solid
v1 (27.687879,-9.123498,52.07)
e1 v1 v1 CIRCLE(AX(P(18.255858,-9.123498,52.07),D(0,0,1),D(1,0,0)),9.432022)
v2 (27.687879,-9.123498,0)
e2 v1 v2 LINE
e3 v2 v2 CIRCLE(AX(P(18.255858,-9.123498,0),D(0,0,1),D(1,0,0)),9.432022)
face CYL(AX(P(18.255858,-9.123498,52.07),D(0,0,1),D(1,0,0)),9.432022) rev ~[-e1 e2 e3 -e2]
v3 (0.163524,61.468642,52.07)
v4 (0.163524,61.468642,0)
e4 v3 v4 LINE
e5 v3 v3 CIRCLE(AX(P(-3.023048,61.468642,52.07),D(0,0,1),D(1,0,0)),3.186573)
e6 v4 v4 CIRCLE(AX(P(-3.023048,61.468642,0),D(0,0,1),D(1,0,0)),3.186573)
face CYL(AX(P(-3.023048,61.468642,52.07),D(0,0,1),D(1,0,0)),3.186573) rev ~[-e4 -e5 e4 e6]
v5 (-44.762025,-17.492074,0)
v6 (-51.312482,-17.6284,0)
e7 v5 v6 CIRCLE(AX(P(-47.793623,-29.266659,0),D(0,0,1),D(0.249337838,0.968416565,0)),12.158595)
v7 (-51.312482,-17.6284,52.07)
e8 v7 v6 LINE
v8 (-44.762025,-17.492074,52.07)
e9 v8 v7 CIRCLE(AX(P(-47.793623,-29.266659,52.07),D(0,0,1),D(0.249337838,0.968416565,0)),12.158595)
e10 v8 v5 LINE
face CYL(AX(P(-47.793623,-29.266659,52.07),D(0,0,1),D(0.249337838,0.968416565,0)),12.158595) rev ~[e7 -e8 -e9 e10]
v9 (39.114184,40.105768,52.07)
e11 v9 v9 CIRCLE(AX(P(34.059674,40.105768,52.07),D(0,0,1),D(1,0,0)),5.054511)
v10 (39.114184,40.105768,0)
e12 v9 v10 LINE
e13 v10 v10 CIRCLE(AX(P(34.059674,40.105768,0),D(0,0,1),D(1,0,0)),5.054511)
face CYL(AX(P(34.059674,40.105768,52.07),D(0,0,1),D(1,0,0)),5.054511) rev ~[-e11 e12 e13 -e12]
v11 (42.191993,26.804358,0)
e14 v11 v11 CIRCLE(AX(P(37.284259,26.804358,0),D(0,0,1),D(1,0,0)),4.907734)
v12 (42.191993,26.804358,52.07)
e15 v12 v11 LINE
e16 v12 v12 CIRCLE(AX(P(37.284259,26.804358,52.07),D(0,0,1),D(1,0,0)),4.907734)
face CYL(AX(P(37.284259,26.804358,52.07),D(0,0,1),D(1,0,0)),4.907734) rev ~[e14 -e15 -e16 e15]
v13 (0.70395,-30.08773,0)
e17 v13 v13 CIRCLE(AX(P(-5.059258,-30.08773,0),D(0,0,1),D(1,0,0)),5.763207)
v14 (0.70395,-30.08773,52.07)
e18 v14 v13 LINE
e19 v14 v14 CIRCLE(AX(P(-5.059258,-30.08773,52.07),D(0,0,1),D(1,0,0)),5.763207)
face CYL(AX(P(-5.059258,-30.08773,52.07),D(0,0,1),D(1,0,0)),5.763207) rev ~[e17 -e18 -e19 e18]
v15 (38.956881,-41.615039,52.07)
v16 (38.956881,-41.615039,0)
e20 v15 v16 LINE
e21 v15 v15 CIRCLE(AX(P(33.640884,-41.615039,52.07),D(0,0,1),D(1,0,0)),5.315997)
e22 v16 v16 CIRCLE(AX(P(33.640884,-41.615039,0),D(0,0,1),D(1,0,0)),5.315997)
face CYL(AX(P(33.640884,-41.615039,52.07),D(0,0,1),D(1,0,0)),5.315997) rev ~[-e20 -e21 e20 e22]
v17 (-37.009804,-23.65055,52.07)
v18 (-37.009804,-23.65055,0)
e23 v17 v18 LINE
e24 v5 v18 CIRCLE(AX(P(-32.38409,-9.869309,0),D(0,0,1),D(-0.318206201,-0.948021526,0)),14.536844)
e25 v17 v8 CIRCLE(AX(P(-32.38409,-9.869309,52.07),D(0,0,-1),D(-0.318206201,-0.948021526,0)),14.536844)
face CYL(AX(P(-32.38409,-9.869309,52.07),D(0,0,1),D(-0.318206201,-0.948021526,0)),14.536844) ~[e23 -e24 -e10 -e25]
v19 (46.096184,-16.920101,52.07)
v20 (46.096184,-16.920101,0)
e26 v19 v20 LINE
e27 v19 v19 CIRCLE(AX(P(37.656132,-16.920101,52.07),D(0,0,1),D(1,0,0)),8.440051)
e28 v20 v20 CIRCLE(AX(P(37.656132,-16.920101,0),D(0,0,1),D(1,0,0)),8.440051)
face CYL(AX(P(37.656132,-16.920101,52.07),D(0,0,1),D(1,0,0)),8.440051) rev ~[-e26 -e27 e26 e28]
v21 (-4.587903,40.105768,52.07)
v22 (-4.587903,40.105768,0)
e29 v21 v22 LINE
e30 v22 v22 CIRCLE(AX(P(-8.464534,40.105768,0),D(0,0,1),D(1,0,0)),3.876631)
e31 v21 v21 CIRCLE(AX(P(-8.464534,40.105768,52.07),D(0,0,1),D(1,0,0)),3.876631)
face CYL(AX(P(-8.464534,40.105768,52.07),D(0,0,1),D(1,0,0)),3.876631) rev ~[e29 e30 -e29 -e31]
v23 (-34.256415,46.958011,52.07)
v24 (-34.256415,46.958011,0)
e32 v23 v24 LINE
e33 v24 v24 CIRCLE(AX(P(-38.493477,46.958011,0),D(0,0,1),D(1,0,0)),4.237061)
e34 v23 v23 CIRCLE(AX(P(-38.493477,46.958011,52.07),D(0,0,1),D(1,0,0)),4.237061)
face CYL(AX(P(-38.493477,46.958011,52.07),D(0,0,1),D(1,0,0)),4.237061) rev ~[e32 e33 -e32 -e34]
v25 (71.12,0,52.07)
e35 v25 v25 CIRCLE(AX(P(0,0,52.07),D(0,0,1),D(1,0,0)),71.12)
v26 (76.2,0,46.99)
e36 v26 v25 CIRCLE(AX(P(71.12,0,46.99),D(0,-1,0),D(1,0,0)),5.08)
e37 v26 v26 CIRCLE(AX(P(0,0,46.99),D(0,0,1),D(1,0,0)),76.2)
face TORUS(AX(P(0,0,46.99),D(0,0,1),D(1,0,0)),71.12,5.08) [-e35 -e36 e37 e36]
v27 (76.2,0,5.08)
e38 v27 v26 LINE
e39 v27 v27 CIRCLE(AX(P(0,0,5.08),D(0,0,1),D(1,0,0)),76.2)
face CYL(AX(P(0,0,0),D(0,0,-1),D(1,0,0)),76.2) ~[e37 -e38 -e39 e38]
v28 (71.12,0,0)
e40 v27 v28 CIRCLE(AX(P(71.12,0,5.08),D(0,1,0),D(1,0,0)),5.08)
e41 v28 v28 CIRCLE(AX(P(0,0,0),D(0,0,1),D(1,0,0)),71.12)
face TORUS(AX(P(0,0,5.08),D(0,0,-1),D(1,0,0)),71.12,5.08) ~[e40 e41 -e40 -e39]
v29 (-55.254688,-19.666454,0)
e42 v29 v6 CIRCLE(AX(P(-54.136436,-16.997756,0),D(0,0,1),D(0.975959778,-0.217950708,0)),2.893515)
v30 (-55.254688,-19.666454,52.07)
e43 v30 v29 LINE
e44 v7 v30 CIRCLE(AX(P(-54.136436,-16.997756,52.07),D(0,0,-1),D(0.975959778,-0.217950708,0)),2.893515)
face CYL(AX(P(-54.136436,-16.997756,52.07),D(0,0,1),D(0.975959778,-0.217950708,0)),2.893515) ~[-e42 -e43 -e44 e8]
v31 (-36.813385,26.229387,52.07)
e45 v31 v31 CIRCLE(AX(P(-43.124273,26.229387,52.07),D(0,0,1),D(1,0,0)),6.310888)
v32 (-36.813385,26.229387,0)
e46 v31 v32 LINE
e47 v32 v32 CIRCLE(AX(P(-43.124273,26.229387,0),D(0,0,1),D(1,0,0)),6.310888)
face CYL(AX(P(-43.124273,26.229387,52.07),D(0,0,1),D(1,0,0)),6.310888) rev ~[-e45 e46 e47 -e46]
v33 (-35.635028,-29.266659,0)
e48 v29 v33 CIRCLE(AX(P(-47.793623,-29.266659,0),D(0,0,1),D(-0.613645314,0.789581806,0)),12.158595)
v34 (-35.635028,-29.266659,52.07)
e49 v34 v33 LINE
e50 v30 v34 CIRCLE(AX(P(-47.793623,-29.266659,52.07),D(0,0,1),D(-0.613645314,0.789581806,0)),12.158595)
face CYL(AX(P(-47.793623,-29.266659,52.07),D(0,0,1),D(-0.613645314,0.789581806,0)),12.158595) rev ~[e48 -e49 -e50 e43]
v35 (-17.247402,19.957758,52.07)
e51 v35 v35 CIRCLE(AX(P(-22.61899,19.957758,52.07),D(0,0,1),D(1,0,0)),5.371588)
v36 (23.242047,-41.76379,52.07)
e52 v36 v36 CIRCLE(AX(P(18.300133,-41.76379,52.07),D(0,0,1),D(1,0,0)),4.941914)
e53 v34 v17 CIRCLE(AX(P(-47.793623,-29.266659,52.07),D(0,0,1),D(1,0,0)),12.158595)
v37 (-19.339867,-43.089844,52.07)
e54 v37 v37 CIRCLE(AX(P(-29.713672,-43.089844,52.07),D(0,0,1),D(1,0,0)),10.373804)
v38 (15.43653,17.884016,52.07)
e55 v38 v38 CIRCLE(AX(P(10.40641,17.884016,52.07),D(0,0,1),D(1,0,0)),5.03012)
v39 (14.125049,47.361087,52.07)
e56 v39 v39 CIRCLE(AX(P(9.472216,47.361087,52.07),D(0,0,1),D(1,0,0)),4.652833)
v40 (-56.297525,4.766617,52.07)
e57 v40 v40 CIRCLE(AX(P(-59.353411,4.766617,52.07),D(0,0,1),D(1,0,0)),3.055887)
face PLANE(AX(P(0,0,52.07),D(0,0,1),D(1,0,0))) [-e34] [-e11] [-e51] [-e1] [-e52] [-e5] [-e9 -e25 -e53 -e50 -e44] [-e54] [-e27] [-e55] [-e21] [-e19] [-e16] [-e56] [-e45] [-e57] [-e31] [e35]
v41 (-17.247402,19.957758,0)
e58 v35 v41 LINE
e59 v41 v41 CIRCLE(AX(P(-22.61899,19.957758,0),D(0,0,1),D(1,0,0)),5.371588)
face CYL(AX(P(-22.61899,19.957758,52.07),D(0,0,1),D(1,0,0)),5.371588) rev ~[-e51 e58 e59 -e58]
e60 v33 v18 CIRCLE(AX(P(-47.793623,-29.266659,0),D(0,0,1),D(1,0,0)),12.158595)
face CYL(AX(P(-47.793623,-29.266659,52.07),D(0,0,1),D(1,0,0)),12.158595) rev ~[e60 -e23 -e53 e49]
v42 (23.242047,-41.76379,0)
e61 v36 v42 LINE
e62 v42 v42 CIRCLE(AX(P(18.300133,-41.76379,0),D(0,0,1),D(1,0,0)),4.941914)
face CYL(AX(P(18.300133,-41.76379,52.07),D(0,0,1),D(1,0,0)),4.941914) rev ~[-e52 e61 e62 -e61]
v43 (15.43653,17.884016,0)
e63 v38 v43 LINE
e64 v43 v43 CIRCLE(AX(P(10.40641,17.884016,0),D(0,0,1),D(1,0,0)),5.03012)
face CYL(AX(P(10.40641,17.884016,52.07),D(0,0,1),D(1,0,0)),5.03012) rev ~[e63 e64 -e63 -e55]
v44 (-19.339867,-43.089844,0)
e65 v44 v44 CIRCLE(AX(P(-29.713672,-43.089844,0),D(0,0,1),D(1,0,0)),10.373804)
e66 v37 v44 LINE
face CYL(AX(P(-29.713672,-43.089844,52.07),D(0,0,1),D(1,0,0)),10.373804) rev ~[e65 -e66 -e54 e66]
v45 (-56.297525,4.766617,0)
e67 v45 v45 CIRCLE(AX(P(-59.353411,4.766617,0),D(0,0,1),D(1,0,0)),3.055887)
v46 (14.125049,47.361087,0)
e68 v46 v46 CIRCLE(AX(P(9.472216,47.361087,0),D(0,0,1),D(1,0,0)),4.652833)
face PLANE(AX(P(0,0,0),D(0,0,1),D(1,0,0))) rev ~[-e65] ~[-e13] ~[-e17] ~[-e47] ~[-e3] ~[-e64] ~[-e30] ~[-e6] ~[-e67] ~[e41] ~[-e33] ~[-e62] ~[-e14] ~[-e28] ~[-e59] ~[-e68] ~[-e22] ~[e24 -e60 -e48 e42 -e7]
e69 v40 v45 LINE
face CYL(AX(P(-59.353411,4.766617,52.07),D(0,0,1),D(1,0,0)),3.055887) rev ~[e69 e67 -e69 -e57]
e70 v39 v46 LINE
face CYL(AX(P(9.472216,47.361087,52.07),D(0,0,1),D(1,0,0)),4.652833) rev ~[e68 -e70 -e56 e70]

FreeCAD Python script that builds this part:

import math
import FreeCAD as App
import Part
import Sketcher
from FreeCAD import Vector
Q = App.Units.Quantity


def edges_at(feature, points):
    """Names of the edges that pass closest to the given points."""
    edges = feature.Shape.Edges
    near = lambda p: min(range(len(edges)), key=lambda i: edges[i].distToShape(Part.Vertex(*p))[0])
    return sorted({f"Edge{near(p) + 1}" for p in points})

doc = App.newDocument("Part")
body = doc.addObject("PartDesign::Body", "Body")

sketch1 = doc.addObject("Sketcher::SketchObject", "Sketch")
body.addObject(sketch1)
sketch1.AttachmentSupport = (doc.XY_Plane, [""])
sketch1.MapMode = "FlatFace"
sketch1.addGeometry(Part.Circle(Vector(0, 0, 0), Vector(0, 0, 1), 76), False)
sketch1.addConstraint([
    Sketcher.Constraint("Coincident", 0, 3, -1, 1),
    Sketcher.Constraint("Diameter", 0, Q("6 in")),
])
pad1 = doc.addObject("PartDesign::Pad", "Pad")
body.addObject(pad1)
pad1.Profile = sketch1
pad1.Length = Q("2.05 in")
doc.recompute()

fillet = doc.addObject("PartDesign::Fillet", "Fillet")
body.addObject(fillet)
fillet.Base = (pad1, edges_at(pad1, [(-76.2, 0, 0), (-76.2, 0, 52.07)]))
fillet.Radius = Q("0.2 in")

sketch2 = doc.addObject("Sketcher::SketchObject", "Sketch001")
body.addObject(sketch2)
sketch2.AttachmentSupport = (doc.XY_Plane, [""])
sketch2.MapMode = "FlatFace"
sketch2.AttachmentOffset = App.Placement(Vector(0, 0, 2.05 * 25.4), App.Rotation())
sketch2.addGeometry([
    Part.ArcOfCircle(Part.Circle(Vector(-32.4, -9.9, 0), Vector(0, 0, 1), 14.5), math.radians(-148), math.radians(-109)),
    Part.ArcOfCircle(Part.Circle(Vector(-47.8, -29.3, 0), Vector(0, 0, 1), 12.2), math.radians(76), math.radians(107)),
    Part.ArcOfCircle(Part.Circle(Vector(-54.1, -17, 0), Vector(0, 0, 1), 2.9), math.radians(-113), math.radians(-13)),
    Part.ArcOfCircle(Part.Circle(Vector(-47.8, -29.3, 0), Vector(0, 0, 1), 12.2), math.radians(128), math.radians(360)),
    Part.ArcOfCircle(Part.Circle(Vector(-47.8, -29.3, 0), Vector(0, 0, 1), 12.2), math.radians(0), math.radians(28)),
    Part.Circle(Vector(-22.6, 20, 0), Vector(0, 0, 1), 5.4),
    Part.Circle(Vector(-38.5, 47, 0), Vector(0, 0, 1), 4.2),
    Part.Circle(Vector(-43.1, 26.2, 0), Vector(0, 0, 1), 6.3),
    Part.Circle(Vector(-8.5, 40.1, 0), Vector(0, 0, 1), 3.9),
    Part.Circle(Vector(9.5, 47.4, 0), Vector(0, 0, 1), 4.7),
    Part.Circle(Vector(-3, 61.5, 0), Vector(0, 0, 1), 3.2),
    Part.Circle(Vector(10.4, 17.9, 0), Vector(0, 0, 1), 5),
    Part.Circle(Vector(37.3, 26.8, 0), Vector(0, 0, 1), 4.9),
    Part.Circle(Vector(18.3, -9.1, 0), Vector(0, 0, 1), 9.4),
    Part.Circle(Vector(37.7, -16.9, 0), Vector(0, 0, 1), 8.4),
    Part.Circle(Vector(33.6, -41.6, 0), Vector(0, 0, 1), 5.3),
    Part.Circle(Vector(18.3, -41.8, 0), Vector(0, 0, 1), 4.9),
    Part.Circle(Vector(-5.1, -30.1, 0), Vector(0, 0, 1), 5.8),
    Part.Circle(Vector(-29.7, -43.1, 0), Vector(0, 0, 1), 10.4),
    Part.Circle(Vector(34.1, 40.1, 0), Vector(0, 0, 1), 5.1),
    Part.Circle(Vector(-59.4, 4.8, 0), Vector(0, 0, 1), 3.1),
], False)
sketch2.addConstraint([
    Sketcher.Constraint("Coincident", 0, 1, 1, 1),
    Sketcher.Constraint("Coincident", 1, 2, 2, 2),
    Sketcher.Constraint("Coincident", 2, 1, 3, 1),
    Sketcher.Constraint("Tangent", 3, 2, 4, 1),
    Sketcher.Constraint("Coincident", 4, 2, 0, 2),
    Sketcher.Constraint("Coincident", 3, 3, 1, 3),
    Sketcher.Constraint("Equal", 1, 3),
    Sketcher.Constraint("Equal", 3, 4),
    Sketcher.Constraint("Horizontal", 8, 3, 19, 3),
    Sketcher.Constraint("Horizontal", 4, 3, 3, 2),
    Sketcher.Constraint("Diameter", 11, 10.06024),
    Sketcher.Constraint("Diameter", 12, 9.815468),
    Sketcher.Constraint("Diameter", 16, 9.883829),
    Sketcher.Constraint("Diameter", 18, 20.747608),
    Sketcher.Constraint("Diameter", 19, 10.109022),
    Sketcher.Constraint("Diameter", 5, 10.743176),
    Sketcher.Constraint("Diameter", 6, 8.474123),
    Sketcher.Constraint("Diameter", 7, 12.621777),
    Sketcher.Constraint("Diameter", 8, 7.753262),
    Sketcher.Constraint("Diameter", 9, 9.305666),
    Sketcher.Constraint("Diameter", 10, 6.373145),
    Sketcher.Constraint("Diameter", 13, 18.864043),
    Sketcher.Constraint("Diameter", 14, 16.880103),
    Sketcher.Constraint("Diameter", 15, 10.631995),
    Sketcher.Constraint("Diameter", 17, 11.526415),
    Sketcher.Constraint("Diameter", 20, 6.111773),
    Sketcher.Constraint("Radius", 0, 14.536844),
    Sketcher.Constraint("Radius", 1, 12.158595),
    Sketcher.Constraint("Radius", 2, 2.893515),
    Sketcher.Constraint("DistanceY", 14, 3, -1, 1, 16.920101),
    Sketcher.Constraint("DistanceY", 1, 2, -1, 1, 17.6284),
    Sketcher.Constraint("DistanceX", 0, 3, 5, 3, 9.7651),
    Sketcher.Constraint("DistanceY", 7, 3, 9, 3, 21.1317),
    Sketcher.Constraint("DistanceX", 5, 3, 11, 3, 33.025401),
    Sketcher.Constraint("DistanceY", 5, 3, 12, 3, 6.846599),
    Sketcher.Constraint("DistanceX", 13, 3, 12, 3, 19.028401),
    Sketcher.Constraint("DistanceX", 16, 3, 14, 3, 19.355999),
    Sketcher.Constraint("DistanceX", 0, 3, -1, 1, 32.38409),
    Sketcher.Constraint("DistanceY", 0, 3, -1, 1, 9.869309),
    Sketcher.Constraint("DistanceY", 1, 3, -1, 1, 29.266659),
    Sketcher.Constraint("DistanceY", -1, 1, 5, 3, 19.957758),
    Sketcher.Constraint("DistanceY", -1, 1, 6, 3, 46.958011),
    Sketcher.Constraint("DistanceX", 10, 3, -1, 1, 3.023048),
    Sketcher.Constraint("DistanceX", -1, 1, 12, 3, 37.284259),
    Sketcher.Constraint("DistanceY", 15, 3, -1, 1, 41.615039),
    Sketcher.Constraint("DistanceY", 16, 3, -1, 1, 41.76379),
    Sketcher.Constraint("DistanceY", 17, 3, -1, 1, 30.08773),
    Sketcher.Constraint("DistanceX", 18, 3, -1, 1, 29.713672),
    Sketcher.Constraint("DistanceX", 20, 3, -1, 1, 59.353411),
    Sketcher.Constraint("DistanceX", 1, 2, -1, 1, 51.312482),
    Sketcher.Constraint("DistanceX", 2, 1, -1, 1, 55.254688),
    Sketcher.Constraint("DistanceX", 2, 3, 6, 3, 15.64296),
    Sketcher.Constraint("DistanceY", 5, 3, 7, 3, 6.271629),
    Sketcher.Constraint("DistanceX", 1, 3, 7, 3, 4.66935),
    Sketcher.Constraint("DistanceY", 5, 3, 8, 3, 20.148009),
    Sketcher.Constraint("DistanceX", 7, 3, 8, 3, 34.65974),
    Sketcher.Constraint("DistanceX", 8, 3, 9, 3, 17.93675),
    Sketcher.Constraint("DistanceY", 6, 3, 10, 3, 14.510632),
    Sketcher.Constraint("DistanceY", 11, 3, 8, 3, 22.221752),
    Sketcher.Constraint("DistanceY", 0, 3, 13, 3, 0.745811),
    Sketcher.Constraint("DistanceX", 11, 3, 14, 3, 27.249722),
    Sketcher.Constraint("DistanceX", 15, 3, 14, 3, 4.015248),
    Sketcher.Constraint("DistanceX", 17, 3, 16, 3, 23.35939),
    Sketcher.Constraint("DistanceX", 10, 3, 19, 3, 37.082722),
    Sketcher.Constraint("DistanceY", 20, 3, 7, 3, 21.46277),
    Sketcher.Constraint("DistanceY", 18, 3, -1, 1, 43.089844),
])
pocket1 = doc.addObject("PartDesign::Pocket", "Pocket")
body.addObject(pocket1)
pocket1.Profile = sketch2
pocket1.Type = "ThroughAll"

doc.recompute()
